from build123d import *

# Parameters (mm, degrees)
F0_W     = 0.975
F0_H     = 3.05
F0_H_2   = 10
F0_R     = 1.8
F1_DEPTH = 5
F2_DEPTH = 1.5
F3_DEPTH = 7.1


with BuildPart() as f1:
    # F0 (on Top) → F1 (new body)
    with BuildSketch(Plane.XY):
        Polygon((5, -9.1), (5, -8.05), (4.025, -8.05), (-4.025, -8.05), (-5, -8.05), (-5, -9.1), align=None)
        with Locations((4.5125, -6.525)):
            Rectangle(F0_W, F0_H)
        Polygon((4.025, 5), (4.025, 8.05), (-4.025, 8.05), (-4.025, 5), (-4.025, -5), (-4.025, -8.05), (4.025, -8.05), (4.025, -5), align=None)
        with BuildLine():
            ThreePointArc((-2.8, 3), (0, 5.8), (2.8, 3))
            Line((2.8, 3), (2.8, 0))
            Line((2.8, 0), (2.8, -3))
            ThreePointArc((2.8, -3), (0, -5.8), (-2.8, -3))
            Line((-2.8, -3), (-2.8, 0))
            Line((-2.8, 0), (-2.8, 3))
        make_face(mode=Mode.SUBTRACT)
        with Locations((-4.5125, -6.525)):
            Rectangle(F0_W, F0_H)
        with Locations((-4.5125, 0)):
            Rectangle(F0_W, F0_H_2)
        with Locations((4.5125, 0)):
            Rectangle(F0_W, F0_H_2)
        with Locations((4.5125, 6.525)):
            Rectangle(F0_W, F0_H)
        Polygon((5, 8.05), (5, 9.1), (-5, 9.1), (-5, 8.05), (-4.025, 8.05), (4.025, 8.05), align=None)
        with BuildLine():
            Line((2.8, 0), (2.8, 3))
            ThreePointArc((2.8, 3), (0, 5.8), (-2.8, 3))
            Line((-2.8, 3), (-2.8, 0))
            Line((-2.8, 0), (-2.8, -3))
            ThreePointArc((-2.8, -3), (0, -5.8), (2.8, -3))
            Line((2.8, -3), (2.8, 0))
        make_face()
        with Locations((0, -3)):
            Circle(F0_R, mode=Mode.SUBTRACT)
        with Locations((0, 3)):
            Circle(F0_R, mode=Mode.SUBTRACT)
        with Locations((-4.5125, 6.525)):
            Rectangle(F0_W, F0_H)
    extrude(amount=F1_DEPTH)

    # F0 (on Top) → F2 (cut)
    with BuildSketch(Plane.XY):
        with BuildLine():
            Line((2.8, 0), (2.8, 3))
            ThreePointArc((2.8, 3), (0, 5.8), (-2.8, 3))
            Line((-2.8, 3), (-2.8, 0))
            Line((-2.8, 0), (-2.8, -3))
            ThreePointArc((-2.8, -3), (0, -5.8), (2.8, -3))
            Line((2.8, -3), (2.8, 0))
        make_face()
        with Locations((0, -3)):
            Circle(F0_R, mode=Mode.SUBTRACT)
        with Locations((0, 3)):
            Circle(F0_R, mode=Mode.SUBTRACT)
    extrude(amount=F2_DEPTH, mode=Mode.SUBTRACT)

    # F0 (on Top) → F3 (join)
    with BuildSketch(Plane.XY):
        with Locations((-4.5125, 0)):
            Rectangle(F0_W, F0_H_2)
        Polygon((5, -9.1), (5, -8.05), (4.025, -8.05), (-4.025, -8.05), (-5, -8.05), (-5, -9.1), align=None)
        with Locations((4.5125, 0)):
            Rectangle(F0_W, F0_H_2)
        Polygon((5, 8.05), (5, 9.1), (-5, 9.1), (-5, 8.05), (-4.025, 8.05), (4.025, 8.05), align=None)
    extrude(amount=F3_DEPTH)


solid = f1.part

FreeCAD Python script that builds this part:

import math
import FreeCAD as App
import Part
import Sketcher
Q = App.Units.Quantity


def add_polygon(sketch, points):
    """Adds a closed chain of lines whose ends are joined by coincident constraints."""
    first, n = sketch.GeometryCount, len(points)
    for a, b in zip(points, points[1:] + points[:1]):
        sketch.addGeometry(Part.LineSegment(App.Vector(*a, 0), App.Vector(*b, 0)), False)
    for i in range(n):
        sketch.addConstraint(Sketcher.Constraint("Coincident", first + i, 2, first + (i + 1) % n, 1))

doc = App.newDocument("Part")
params = doc.addObject("Spreadsheet::Sheet", "Params")
for row, (alias, value) in enumerate([
    ("sketch1_diameter", "3.6 mm"),
    ("sketch1_width", "10 mm"),
    ("sketch1_height", "18.2 mm"),
    ("pad1_length", "5 mm"),
    ("sketch2_diameter", "3.6 mm"),
    ("sketch2_radius", "2.8 mm"),
    ("sketch2_height", "6 mm"),
    ("pocket1_length", "1.5 mm"),
    ("sketch3_width", "10 mm"),
    ("sketch3_height", "1.05 mm"),
    ("pad2_length", "7.1 mm"),
], start=1):
    params.set(f"A{row}", alias)
    params.set(f"B{row}", "=" + value)
    params.setAlias(f"B{row}", alias)

body = doc.addObject("PartDesign::Body", "Body")

sketch1 = doc.addObject("Sketcher::SketchObject", "Sketch")
body.addObject(sketch1)
sketch1.AttachmentSupport = (doc.XY_Plane, [""])
sketch1.MapMode = "FlatFace"
add_polygon(sketch1, [(5, -9.1), (5, 9.1), (-5, 9.1), (-5, -9.1)])
sketch1.addGeometry(Part.Circle(App.Vector(0, -3, 0), App.Vector(0, 0, 1), 1.8), False)
sketch1.addGeometry(Part.Circle(App.Vector(0, 3, 0), App.Vector(0, 0, 1), 1.8), False)
sketch1.addConstraint(Sketcher.Constraint("Vertical", 0))
sketch1.addConstraint(Sketcher.Constraint("Horizontal", 1))
sketch1.addConstraint(Sketcher.Constraint("Vertical", 2))
sketch1.addConstraint(Sketcher.Constraint("Horizontal", 3))
sketch1.addConstraint(Sketcher.Constraint("Equal", 4, 5))
sketch1.addConstraint(Sketcher.Constraint("Symmetric", 4, 3, 5, 3, -1, 1))
sketch1.addConstraint(Sketcher.Constraint("Symmetric", 0, 2, 2, 2, -1, 1))
sketch1.addConstraint(Sketcher.Constraint("PointOnObject", 4, 3, -2))
sketch1.addConstraint(Sketcher.Constraint("Diameter", 4, Q("3.6 mm")))
sketch1.addConstraint(Sketcher.Constraint("DistanceX", 1, 2, 1, 1, Q("10 mm")))
sketch1.addConstraint(Sketcher.Constraint("DistanceY", 0, 1, 0, 2, Q("18.2 mm")))
sketch1.addConstraint(Sketcher.Constraint("DistanceY", 4, 3, -1, 1, Q("3 mm")))
sketch1.setExpression("Constraints[12]", "Params.sketch1_diameter")
sketch1.setExpression("Constraints[13]", "Params.sketch1_width")
sketch1.setExpression("Constraints[14]", "Params.sketch1_height")
pad1 = doc.addObject("PartDesign::Pad", "Pad")
body.addObject(pad1)
pad1.Profile = sketch1
pad1.setExpression("Length", "Params.pad1_length")

sketch2 = doc.addObject("Sketcher::SketchObject", "Sketch001")
body.addObject(sketch2)
sketch2.AttachmentSupport = (doc.XY_Plane, [""])
sketch2.MapMode = "FlatFace"
sketch2.addGeometry(Part.ArcOfCircle(Part.Circle(App.Vector(0, 3, 0), App.Vector(0, 0, 1), 2.8), math.radians(0), math.radians(180)), False)
sketch2.addGeometry(Part.LineSegment(App.Vector(-2.8, 3, 0), App.Vector(-2.8, -3, 0)), False)
sketch2.addGeometry(Part.ArcOfCircle(Part.Circle(App.Vector(0, -3, 0), App.Vector(0, 0, 1), 2.8), math.radians(180), math.radians(360)), False)
sketch2.addGeometry(Part.LineSegment(App.Vector(2.8, -3, 0), App.Vector(2.8, 3, 0)), False)
sketch2.addGeometry(Part.Circle(App.Vector(0, -3, 0), App.Vector(0, 0, 1), 1.8), False)
sketch2.addGeometry(Part.Circle(App.Vector(0, 3, 0), App.Vector(0, 0, 1), 1.8), False)
sketch2.addConstraint(Sketcher.Constraint("Tangent", 0, 2, 1, 1))
sketch2.addConstraint(Sketcher.Constraint("Tangent", 1, 2, 2, 1))
sketch2.addConstraint(Sketcher.Constraint("Tangent", 2, 2, 3, 1))
sketch2.addConstraint(Sketcher.Constraint("Tangent", 3, 2, 0, 1))
sketch2.addConstraint(Sketcher.Constraint("Vertical", 1))
sketch2.addConstraint(Sketcher.Constraint("Vertical", 3))
sketch2.addConstraint(Sketcher.Constraint("Coincident", 4, 3, 2, 3))
sketch2.addConstraint(Sketcher.Constraint("Coincident", 5, 3, 0, 3))
sketch2.addConstraint(Sketcher.Constraint("Equal", 4, 5))
sketch2.addConstraint(Sketcher.Constraint("Symmetric", 0, 3, 2, 3, -1, 1))
sketch2.addConstraint(Sketcher.Constraint("Diameter", 4, Q("3.6 mm")))
sketch2.addConstraint(Sketcher.Constraint("Radius", 0, Q("2.8 mm")))
sketch2.addConstraint(Sketcher.Constraint("DistanceY", 1, 2, 1, 1, Q("6 mm")))
sketch2.setExpression("Constraints[10]", "Params.sketch2_diameter")
sketch2.setExpression("Constraints[11]", "Params.sketch2_radius")
sketch2.setExpression("Constraints[12]", "Params.sketch2_height")
pocket1 = doc.addObject("PartDesign::Pocket", "Pocket")
body.addObject(pocket1)
pocket1.Profile = sketch2
pocket1.setExpression("Length", "Params.pocket1_length")
pocket1.Reversed = True

sketch3 = doc.addObject("Sketcher::SketchObject", "Sketch002")
body.addObject(sketch3)
sketch3.AttachmentSupport = (doc.XY_Plane, [""])
sketch3.MapMode = "FlatFace"
add_polygon(sketch3, [(-5, 5), (-5, -5), (-4, -5), (-4, 5)])
add_polygon(sketch3, [(5, -9.1), (5, -8.1), (-5, -8.1), (-5, -9.1)])
add_polygon(sketch3, [(4, 5), (4, -5), (5, -5), (5, 5)])
add_polygon(sketch3, [(5, 8.1), (5, 9.1), (-5, 9.1), (-5, 8.1)])
sketch3.addConstraint(Sketcher.Constraint("Vertical", 0))
sketch3.addConstraint(Sketcher.Constraint("Horizontal", 1))
sketch3.addConstraint(Sketcher.Constraint("Vertical", 2))
sketch3.addConstraint(Sketcher.Constraint("Horizontal", 3))
sketch3.addConstraint(Sketcher.Constraint("Vertical", 4))
sketch3.addConstraint(Sketcher.Constraint("Horizontal", 5))
sketch3.addConstraint(Sketcher.Constraint("Vertical", 6))
sketch3.addConstraint(Sketcher.Constraint("Horizontal", 7))
sketch3.addConstraint(Sketcher.Constraint("Vertical", 8))
sketch3.addConstraint(Sketcher.Constraint("Horizontal", 9))
sketch3.addConstraint(Sketcher.Constraint("Vertical", 10))
sketch3.addConstraint(Sketcher.Constraint("Horizontal", 11))
sketch3.addConstraint(Sketcher.Constraint("Vertical", 12))
sketch3.addConstraint(Sketcher.Constraint("Horizontal", 13))
sketch3.addConstraint(Sketcher.Constraint("Vertical", 14))
sketch3.addConstraint(Sketcher.Constraint("Horizontal", 15))
sketch3.addConstraint(Sketcher.Constraint("Symmetric", 2, 2, 8, 2, -1, 1))
sketch3.addConstraint(Sketcher.Constraint("Symmetric", 0, 2, 10, 2, -1, 1))
sketch3.addConstraint(Sketcher.Constraint("Symmetric", 6, 2, 12, 2, -1, 1))
sketch3.addConstraint(Sketcher.Constraint("Symmetric", 4, 2, 14, 2, -1, 1))
sketch3.addConstraint(Sketcher.Constraint("Horizontal", 1, 2, 8, 2))
sketch3.addConstraint(Sketcher.Constraint("Vertical", 3, 2, 5, 2))
sketch3.addConstraint(Sketcher.Constraint("Vertical", 7, 2, 9, 2))
sketch3.addConstraint(Sketcher.Constraint("Equal", 15, 0))
sketch3.addConstraint(Sketcher.Constraint("DistanceX", 5, 2, 5, 1, Q("10 mm")))
sketch3.addConstraint(Sketcher.Constraint("DistanceY", 4, 1, 4, 2, Q("1.05 mm")))
sketch3.addConstraint(Sketcher.Constraint("DistanceY", 6, 2, -1, 1, Q("9.1 mm")))
sketch3.addConstraint(Sketcher.Constraint("DistanceX", 1, 1, 1, 2, Q("0.975 mm")))
sketch3.setExpression("Constraints[40]", "Params.sketch3_width")
sketch3.setExpression("Constraints[41]", "Params.sketch3_height")
pad2 = doc.addObject("PartDesign::Pad", "Pad001")
body.addObject(pad2)
pad2.Profile = sketch3
pad2.setExpression("Length", "Params.pad2_length")

doc.recompute()
